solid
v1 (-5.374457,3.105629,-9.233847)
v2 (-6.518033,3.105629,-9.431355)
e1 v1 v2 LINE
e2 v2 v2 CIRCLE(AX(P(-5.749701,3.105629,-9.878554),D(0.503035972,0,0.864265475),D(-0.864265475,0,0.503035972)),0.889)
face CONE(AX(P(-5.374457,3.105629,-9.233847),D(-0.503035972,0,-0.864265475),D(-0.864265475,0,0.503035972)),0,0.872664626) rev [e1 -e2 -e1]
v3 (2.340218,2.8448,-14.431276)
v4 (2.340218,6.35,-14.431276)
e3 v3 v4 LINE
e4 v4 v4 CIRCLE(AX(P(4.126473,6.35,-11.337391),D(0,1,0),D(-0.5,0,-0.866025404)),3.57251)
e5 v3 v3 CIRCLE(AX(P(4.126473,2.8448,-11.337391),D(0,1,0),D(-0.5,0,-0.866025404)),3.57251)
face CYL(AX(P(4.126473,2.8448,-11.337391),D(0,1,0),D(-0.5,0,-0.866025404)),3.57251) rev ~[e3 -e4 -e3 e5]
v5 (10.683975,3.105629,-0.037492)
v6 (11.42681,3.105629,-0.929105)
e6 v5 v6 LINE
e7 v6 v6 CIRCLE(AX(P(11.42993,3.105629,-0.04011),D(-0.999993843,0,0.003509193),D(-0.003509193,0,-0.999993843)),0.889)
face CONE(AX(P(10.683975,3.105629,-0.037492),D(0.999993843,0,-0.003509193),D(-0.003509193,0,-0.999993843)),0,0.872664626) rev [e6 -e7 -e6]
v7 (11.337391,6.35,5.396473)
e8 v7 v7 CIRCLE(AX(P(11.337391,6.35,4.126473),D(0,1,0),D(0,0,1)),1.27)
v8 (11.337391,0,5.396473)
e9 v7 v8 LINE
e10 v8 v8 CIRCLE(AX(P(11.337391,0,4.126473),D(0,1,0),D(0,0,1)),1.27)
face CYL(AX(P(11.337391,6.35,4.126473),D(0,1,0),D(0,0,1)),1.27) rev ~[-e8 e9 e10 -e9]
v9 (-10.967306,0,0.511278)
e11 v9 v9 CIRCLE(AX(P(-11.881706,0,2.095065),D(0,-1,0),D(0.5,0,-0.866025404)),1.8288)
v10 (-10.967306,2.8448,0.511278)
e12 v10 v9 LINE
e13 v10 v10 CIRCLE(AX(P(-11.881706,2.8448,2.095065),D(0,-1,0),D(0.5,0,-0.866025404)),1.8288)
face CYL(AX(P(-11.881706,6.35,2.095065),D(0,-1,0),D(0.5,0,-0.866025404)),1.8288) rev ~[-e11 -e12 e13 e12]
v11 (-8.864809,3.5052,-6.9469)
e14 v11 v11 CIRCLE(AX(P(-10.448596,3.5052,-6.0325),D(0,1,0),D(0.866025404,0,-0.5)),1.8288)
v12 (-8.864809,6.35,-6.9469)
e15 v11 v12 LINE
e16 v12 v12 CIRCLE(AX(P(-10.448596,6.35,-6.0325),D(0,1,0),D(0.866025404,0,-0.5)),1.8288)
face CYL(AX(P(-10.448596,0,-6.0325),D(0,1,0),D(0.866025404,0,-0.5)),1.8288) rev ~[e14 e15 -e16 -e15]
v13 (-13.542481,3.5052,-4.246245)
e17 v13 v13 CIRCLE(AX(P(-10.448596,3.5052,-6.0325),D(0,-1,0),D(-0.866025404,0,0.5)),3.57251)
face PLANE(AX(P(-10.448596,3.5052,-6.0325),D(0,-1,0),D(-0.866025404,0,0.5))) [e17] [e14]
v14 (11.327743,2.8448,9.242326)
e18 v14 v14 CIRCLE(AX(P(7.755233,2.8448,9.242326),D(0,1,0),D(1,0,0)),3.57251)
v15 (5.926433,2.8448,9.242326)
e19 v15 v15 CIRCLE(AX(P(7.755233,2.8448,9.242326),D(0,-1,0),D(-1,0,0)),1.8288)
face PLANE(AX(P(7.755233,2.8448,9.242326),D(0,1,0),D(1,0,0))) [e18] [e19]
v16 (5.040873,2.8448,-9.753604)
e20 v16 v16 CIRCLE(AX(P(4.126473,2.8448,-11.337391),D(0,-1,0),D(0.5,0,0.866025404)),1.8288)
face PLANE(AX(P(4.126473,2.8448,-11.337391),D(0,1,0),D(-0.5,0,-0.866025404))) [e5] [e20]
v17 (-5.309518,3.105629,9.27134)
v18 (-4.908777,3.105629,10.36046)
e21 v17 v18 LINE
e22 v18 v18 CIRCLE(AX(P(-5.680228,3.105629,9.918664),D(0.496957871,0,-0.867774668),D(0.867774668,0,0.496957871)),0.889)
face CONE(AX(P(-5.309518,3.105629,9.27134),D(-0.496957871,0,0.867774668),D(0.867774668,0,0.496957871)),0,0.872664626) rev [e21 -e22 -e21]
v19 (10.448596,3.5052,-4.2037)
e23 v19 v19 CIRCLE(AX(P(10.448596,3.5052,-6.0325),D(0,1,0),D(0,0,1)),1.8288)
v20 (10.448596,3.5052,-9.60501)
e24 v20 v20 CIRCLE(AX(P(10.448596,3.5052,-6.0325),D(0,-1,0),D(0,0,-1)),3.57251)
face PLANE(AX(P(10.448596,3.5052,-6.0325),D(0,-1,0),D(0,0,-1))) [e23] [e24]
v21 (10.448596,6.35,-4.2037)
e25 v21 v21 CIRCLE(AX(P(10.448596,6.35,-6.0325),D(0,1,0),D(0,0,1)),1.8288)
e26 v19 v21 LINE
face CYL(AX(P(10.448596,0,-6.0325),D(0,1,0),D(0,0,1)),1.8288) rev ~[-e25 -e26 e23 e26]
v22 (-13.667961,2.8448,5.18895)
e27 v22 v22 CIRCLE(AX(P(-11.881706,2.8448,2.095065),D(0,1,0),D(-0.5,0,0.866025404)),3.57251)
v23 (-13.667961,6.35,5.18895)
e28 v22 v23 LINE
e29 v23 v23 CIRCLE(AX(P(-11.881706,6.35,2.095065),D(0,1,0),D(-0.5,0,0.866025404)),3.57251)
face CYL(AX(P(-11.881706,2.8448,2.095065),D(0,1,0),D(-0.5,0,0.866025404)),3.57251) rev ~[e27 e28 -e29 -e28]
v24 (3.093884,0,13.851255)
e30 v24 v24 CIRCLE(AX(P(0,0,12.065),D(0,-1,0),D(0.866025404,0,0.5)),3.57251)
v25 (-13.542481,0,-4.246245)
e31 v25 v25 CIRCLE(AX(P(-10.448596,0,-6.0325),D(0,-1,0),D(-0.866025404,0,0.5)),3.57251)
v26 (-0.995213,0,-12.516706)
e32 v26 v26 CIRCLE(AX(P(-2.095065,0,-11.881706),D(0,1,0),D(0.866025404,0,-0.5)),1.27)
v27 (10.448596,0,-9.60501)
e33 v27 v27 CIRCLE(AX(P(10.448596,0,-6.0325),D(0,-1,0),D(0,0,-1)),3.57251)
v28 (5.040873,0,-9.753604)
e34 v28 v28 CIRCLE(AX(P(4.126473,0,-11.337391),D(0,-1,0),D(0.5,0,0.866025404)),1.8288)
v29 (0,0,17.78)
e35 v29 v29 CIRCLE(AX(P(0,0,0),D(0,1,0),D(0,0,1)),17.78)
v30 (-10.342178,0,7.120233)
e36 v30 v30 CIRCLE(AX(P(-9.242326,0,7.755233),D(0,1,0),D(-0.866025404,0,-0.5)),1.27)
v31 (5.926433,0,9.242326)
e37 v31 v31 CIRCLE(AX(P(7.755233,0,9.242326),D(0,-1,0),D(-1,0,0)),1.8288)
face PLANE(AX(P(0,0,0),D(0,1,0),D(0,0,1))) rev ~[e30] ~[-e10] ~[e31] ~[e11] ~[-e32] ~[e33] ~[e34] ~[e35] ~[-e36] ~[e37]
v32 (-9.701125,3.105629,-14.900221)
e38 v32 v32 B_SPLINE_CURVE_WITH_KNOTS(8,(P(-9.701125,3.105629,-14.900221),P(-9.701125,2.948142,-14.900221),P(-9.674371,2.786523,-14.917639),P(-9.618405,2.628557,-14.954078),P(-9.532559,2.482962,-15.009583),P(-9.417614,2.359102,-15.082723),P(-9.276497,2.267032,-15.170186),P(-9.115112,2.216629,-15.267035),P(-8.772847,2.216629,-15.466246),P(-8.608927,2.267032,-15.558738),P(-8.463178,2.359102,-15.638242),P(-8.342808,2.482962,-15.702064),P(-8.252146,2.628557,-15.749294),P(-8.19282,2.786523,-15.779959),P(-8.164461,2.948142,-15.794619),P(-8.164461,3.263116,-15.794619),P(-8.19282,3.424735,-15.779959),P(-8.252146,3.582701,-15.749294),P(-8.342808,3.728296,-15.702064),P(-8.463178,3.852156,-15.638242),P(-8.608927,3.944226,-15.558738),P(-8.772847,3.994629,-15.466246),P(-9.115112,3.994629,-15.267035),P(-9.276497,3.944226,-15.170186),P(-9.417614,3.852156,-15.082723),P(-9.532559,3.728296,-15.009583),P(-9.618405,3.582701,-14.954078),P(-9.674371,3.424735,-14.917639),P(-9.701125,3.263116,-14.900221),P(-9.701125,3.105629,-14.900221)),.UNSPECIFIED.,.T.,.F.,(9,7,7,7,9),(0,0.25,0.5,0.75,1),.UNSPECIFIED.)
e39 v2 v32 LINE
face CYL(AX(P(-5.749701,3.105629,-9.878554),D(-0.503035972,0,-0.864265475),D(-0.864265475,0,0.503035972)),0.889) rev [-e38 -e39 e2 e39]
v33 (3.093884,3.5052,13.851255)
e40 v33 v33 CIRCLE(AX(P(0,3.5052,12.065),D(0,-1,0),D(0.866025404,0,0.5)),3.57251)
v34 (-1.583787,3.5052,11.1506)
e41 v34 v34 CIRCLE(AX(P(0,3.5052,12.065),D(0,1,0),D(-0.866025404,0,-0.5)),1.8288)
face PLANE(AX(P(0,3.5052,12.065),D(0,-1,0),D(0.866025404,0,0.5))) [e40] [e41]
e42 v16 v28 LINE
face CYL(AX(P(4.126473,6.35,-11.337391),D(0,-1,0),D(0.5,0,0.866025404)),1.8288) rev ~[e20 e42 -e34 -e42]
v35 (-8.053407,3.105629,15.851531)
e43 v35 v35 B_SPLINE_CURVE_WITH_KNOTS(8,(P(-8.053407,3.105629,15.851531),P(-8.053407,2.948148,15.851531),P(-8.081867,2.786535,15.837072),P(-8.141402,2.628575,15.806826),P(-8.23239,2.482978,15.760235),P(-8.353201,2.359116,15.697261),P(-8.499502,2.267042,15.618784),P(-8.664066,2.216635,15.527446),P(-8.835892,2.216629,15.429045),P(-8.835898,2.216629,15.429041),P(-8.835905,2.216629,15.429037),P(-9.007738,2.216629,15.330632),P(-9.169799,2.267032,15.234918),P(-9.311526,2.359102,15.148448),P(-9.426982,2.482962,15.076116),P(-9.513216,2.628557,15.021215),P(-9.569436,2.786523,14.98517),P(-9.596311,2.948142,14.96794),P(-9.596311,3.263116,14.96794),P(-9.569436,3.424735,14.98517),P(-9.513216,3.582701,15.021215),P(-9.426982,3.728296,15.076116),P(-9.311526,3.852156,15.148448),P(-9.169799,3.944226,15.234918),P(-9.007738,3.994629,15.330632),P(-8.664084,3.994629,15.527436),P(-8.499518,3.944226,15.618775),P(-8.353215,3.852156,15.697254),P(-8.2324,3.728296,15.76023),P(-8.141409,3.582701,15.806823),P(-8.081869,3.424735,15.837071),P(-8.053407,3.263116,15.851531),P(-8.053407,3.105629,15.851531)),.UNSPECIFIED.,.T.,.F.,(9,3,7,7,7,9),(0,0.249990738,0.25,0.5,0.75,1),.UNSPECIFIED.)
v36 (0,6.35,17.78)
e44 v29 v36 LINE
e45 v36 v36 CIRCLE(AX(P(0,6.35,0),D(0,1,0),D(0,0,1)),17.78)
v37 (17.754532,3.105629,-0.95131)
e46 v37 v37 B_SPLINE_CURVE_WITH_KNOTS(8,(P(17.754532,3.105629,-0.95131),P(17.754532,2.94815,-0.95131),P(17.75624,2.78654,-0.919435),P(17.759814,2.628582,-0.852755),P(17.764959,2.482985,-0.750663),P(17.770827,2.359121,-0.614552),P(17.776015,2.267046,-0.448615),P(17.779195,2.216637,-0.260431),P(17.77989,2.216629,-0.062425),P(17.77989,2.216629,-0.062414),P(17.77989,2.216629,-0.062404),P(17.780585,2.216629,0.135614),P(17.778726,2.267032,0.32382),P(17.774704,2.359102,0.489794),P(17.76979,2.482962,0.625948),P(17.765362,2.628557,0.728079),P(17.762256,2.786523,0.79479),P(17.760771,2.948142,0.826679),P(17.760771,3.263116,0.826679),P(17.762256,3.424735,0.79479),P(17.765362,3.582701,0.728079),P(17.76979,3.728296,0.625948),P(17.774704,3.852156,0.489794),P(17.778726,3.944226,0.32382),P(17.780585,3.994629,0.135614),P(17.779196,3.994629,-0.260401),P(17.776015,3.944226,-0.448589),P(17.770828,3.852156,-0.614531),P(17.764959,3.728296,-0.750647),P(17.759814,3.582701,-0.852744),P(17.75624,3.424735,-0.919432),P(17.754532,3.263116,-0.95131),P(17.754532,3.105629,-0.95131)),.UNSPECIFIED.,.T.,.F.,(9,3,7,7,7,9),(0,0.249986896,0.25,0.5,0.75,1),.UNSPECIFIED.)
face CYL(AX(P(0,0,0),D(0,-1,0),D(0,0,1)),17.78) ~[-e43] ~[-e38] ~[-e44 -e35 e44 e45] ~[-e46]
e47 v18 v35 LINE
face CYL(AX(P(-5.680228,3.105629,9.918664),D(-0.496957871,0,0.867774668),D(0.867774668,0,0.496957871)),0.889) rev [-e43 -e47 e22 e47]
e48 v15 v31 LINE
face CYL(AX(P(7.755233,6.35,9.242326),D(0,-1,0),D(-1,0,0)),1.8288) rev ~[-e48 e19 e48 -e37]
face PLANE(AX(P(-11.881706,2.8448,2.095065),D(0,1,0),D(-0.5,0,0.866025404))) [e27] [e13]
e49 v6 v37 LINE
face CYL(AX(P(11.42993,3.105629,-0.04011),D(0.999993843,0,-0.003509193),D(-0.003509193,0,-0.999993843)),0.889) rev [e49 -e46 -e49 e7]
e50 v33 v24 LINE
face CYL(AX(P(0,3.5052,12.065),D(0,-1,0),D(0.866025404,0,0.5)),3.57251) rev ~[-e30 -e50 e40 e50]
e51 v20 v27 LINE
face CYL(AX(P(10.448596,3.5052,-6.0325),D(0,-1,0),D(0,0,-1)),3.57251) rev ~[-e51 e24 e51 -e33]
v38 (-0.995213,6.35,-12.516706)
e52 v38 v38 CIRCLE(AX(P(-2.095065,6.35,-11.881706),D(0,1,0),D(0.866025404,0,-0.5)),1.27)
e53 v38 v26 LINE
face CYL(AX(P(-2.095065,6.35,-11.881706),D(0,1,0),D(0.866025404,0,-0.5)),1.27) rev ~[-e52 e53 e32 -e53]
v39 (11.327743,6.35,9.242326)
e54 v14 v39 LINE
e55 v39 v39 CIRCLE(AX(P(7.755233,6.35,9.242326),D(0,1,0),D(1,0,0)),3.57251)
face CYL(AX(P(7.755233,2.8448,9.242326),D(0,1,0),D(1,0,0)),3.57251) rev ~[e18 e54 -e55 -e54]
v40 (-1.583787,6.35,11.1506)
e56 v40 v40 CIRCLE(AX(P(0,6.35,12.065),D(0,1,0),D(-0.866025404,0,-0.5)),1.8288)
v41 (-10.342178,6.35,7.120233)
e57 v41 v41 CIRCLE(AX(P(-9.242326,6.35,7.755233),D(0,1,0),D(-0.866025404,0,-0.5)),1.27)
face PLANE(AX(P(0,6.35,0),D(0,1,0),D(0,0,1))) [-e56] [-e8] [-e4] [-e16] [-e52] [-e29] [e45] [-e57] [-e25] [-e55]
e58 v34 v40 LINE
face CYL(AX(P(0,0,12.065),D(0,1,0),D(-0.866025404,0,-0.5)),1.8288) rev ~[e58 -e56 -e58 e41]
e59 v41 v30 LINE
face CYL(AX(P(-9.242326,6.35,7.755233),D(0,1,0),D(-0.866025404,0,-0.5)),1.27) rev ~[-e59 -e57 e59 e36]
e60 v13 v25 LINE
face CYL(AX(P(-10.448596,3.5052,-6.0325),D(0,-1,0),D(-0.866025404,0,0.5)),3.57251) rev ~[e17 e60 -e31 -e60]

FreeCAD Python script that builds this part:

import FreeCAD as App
import Part
import Sketcher
from FreeCAD import Vector
Q = App.Units.Quantity


def add_polygon(sketch, points):
    """Adds a closed chain of lines whose ends are joined by coincident constraints."""
    first, n = sketch.GeometryCount, len(points)
    for a, b in zip(points, points[1:] + points[:1]):
        sketch.addGeometry(Part.LineSegment(App.Vector(*a, 0), App.Vector(*b, 0)), False)
    for i in range(n):
        sketch.addConstraint(Sketcher.Constraint("Coincident", first + i, 2, first + (i + 1) % n, 1))

doc = App.newDocument("Part")
body = doc.addObject("PartDesign::Body", "Body")

# Sketch on XZ plane
sketch1 = body.newObject("Sketcher::SketchObject", "Sketch")
sketch1.AttachmentSupport = (doc.getObject("XZ_Plane"), [""])
sketch1.MapMode = "FlatFace"
sketch1.addGeometry(Part.Circle(Vector(0, 0, 0), Vector(0, 0, 1), 18), False)
sketch1.addConstraint([
    Sketcher.Constraint("Coincident", 0, 3, -1, 1),
    Sketcher.Constraint("Diameter", 0, Q("1.4 in")),
])
pad1 = body.newObject("PartDesign::Pad", "Pad")
pad1.Profile = sketch1
pad1.Length = Q("0.25 in")
pad1.Reversed = True

# Sketch on XZ plane
sketch2 = body.newObject("Sketcher::SketchObject", "Sketch001")
sketch2.AttachmentSupport = (doc.getObject("XZ_Plane"), [""])
sketch2.MapMode = "FlatFace"
sketch2.AttachmentOffset = App.Placement(Vector(0, 0, -0.25 * 25.4), App.Rotation())
sketch2.addGeometry(Part.Circle(Vector(7.8, 9.2, 0), Vector(0, 0, 1), 1.8), False)
sketch2.addConstraint([
    Sketcher.Constraint("Diameter", 0, Q("0.144 in")),
    Sketcher.Constraint("DistanceX", -1, 1, 0, 3, Q("7.755233 mm")),
    Sketcher.Constraint("DistanceY", -1, 1, 0, 3, Q("9.242326 mm")),
])
doc.recompute()
hole = body.newObject("PartDesign::Hole", "Hole")
hole.Profile = sketch2
hole.ThreadType = "None"
hole.Diameter = Q("0.144 in")
hole.DepthType = "ThroughAll"
hole.HoleCutType = "Counterbore"
hole.HoleCutDiameter = Q("0.2813 in")
hole.HoleCutDepth = Q("0.138 in")
hole.Reversed = True
doc.recompute()

polarpattern = body.newObject("PartDesign::PolarPattern", "PolarPattern")
polarpattern.Originals = [hole]
polarpattern.Axis = (doc.getObject("Y_Axis"), [""])
polarpattern.Angle = 360
polarpattern.Occurrences = 3
body.Tip = polarpattern

# Sketch on XZ plane
sketch3 = body.newObject("Sketcher::SketchObject", "Sketch002")
sketch3.AttachmentSupport = (doc.getObject("XZ_Plane"), [""])
sketch3.MapMode = "FlatFace"
sketch3.AttachmentOffset = App.Placement(Vector(0, 0, -3.105629), App.Rotation())
add_polygon(sketch3, [(-5.3, 9.3), (-8.8, 15.4), (-8.1, 15.9), (-4.9, 10.4)])  # lines 0-3
sketch3.addGeometry(Part.LineSegment(Vector(-8.8, 15.4, 0), Vector(-5.3, 9.3, 0)), True)  # axis
sketch3.addConstraint([
    Sketcher.Constraint("Coincident", 4, 1, 0, 2),
    Sketcher.Constraint("Coincident", 4, 2, 3, 2),
    Sketcher.Constraint("Perpendicular", 0, 1),
    Sketcher.Constraint("Perpendicular", 1, 2),
    Sketcher.Constraint("Distance", 2, Q("0.25 in")),
    Sketcher.Constraint("Distance", 1, Q("0.035 in")),
    Sketcher.Constraint("Distance", 0, Q("7.09596 mm")),
    Sketcher.Constraint("DistanceX", 0, 2, -1, 1, Q("8.835911 mm")),
    Sketcher.Constraint("DistanceX", 1, 2, -1, 1, Q("8.064459 mm")),
    Sketcher.Constraint("DistanceY", -1, 1, 1, 2, Q("15.870829 mm")),
])
groove = body.newObject("PartDesign::Groove", "Groove")
groove.Profile = sketch3
groove.ReferenceAxis = (sketch3, ["Axis0"])
groove.Angle = 360
doc.recompute()

polarpattern2 = body.newObject("PartDesign::PolarPattern", "PolarPattern001")
polarpattern2.Originals = [groove]
polarpattern2.Axis = (doc.getObject("Y_Axis"), [""])
polarpattern2.Angle = 360
polarpattern2.Occurrences = 3
body.Tip = polarpattern2

# Sketch on XZ plane
sketch4 = body.newObject("Sketcher::SketchObject", "Sketch003")
sketch4.AttachmentSupport = (doc.getObject("XZ_Plane"), [""])
sketch4.MapMode = "FlatFace"
sketch4.addGeometry(Part.Circle(Vector(10.4, -6, 0), Vector(0, 0, 1), 1.8), False)
sketch4.addConstraint([
    Sketcher.Constraint("Diameter", 0, Q("0.144 in")),
    Sketcher.Constraint("DistanceY", 0, 3, -1, 1, Q("0.2375 in")),
    Sketcher.Constraint("DistanceX", -1, 1, 0, 3, Q("10.448596 mm")),
])
doc.recompute()
hole2 = body.newObject("PartDesign::Hole", "Hole001")
hole2.Profile = sketch4
hole2.ThreadType = "None"
hole2.Diameter = Q("0.144 in")
hole2.DepthType = "ThroughAll"
hole2.HoleCutType = "Counterbore"
hole2.HoleCutDiameter = Q("0.2813 in")
hole2.HoleCutDepth = Q("0.138 in")
doc.recompute()

polarpattern3 = body.newObject("PartDesign::PolarPattern", "PolarPattern002")
polarpattern3.Originals = [hole2]
polarpattern3.Axis = (doc.getObject("Y_Axis"), [""])
polarpattern3.Angle = 360
polarpattern3.Occurrences = 3
body.Tip = polarpattern3

# Sketch on XZ plane
sketch5 = body.newObject("Sketcher::SketchObject", "Sketch004")
sketch5.AttachmentSupport = (doc.getObject("XZ_Plane"), [""])
sketch5.MapMode = "FlatFace"
sketch5.AttachmentOffset = App.Placement(Vector(0, 0, -0.25 * 25.4), App.Rotation())
sketch5.addGeometry(Part.Circle(Vector(11.3, 4.1, 0), Vector(0, 0, 1), 1.3), False)
sketch5.addConstraint([
    Sketcher.Constraint("Diameter", 0, Q("0.1 in")),
    Sketcher.Constraint("DistanceX", -1, 1, 0, 3, Q("11.337391 mm")),
    Sketcher.Constraint("DistanceY", -1, 1, 0, 3, Q("4.126473 mm")),
])
pocket1 = body.newObject("PartDesign::Pocket", "Pocket")
pocket1.Profile = sketch5
pocket1.Type = "ThroughAll"
pocket1.Reversed = True
doc.recompute()

polarpattern4 = body.newObject("PartDesign::PolarPattern", "PolarPattern003")
polarpattern4.Originals = [pocket1]
polarpattern4.Axis = (doc.getObject("Y_Axis"), [""])
polarpattern4.Angle = 360
polarpattern4.Occurrences = 3
body.Tip = polarpattern4

doc.recompute()
